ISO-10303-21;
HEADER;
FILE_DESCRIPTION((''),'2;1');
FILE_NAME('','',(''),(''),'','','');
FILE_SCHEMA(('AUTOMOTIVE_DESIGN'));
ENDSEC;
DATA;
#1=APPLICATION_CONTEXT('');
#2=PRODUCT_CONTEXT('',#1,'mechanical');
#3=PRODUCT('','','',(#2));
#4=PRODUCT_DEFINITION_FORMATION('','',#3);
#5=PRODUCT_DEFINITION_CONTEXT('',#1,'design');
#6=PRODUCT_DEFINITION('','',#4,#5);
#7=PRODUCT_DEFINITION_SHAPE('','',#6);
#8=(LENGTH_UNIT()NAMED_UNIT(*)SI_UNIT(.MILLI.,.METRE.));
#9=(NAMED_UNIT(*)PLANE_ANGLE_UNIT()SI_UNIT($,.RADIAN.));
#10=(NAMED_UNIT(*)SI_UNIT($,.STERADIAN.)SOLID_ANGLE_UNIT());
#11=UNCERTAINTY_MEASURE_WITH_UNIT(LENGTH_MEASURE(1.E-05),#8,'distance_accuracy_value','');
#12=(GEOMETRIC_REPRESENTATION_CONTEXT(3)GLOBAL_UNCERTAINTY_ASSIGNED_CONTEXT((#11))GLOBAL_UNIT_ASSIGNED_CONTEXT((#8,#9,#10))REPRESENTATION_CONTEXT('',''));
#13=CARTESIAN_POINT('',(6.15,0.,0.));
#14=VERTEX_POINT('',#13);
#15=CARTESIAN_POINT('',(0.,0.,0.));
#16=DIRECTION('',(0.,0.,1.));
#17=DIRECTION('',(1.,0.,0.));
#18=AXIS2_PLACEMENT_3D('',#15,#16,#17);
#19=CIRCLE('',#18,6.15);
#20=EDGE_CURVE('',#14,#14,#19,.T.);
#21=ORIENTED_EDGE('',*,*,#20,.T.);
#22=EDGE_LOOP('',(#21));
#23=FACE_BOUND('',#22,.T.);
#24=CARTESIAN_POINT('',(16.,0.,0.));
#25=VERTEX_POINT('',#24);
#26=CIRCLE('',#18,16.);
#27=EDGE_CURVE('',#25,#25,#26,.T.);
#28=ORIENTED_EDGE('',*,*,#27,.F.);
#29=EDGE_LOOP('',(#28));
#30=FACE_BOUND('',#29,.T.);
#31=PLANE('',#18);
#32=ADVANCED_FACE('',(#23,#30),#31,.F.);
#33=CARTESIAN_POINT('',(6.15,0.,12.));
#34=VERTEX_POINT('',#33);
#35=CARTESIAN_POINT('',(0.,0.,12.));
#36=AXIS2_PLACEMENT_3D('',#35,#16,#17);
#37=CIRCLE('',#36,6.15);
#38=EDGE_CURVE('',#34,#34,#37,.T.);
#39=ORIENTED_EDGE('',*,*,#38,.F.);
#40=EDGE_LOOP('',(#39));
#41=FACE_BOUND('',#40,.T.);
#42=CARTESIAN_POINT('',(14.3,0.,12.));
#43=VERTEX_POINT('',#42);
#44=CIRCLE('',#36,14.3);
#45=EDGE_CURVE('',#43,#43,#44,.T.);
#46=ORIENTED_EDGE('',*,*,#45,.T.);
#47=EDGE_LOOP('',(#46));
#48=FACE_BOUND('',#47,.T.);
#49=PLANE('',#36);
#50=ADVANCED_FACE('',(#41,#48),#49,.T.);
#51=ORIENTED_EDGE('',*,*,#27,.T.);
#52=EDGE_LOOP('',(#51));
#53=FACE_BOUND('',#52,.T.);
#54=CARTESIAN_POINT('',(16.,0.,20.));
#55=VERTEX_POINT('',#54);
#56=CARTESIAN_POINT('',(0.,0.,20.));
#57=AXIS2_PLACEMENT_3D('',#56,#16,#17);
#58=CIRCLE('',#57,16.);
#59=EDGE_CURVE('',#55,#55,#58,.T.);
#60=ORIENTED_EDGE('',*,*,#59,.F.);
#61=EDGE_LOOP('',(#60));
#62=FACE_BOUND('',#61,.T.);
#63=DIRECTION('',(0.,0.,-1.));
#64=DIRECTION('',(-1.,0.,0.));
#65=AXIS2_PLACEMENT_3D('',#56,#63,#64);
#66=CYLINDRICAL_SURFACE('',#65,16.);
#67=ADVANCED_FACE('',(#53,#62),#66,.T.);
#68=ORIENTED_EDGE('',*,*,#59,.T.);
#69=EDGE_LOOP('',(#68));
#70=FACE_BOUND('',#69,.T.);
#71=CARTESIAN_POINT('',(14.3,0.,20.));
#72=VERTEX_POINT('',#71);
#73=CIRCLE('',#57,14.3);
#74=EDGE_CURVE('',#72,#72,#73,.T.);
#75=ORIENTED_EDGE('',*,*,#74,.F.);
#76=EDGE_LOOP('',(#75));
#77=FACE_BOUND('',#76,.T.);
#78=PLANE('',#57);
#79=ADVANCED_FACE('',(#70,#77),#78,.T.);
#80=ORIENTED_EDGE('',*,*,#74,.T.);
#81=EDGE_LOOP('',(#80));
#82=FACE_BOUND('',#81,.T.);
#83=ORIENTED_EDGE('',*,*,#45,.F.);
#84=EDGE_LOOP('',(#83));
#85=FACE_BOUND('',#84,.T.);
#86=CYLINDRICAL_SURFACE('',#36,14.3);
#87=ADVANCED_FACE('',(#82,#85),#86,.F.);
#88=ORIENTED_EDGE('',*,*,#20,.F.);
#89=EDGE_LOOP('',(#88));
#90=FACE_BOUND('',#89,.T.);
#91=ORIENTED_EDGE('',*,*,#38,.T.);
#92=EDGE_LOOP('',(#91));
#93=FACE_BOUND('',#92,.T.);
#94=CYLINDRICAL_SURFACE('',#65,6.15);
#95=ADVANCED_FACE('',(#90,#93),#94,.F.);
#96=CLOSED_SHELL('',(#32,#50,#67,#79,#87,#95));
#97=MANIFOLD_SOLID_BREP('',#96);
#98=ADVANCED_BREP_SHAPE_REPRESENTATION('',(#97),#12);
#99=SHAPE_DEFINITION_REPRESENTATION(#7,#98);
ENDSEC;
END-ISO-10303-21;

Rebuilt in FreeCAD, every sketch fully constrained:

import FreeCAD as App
import Part
import Sketcher

V = App.Vector

doc = App.newDocument("Part")
params = doc.addObject("Spreadsheet::Sheet", "Params")
for row, (alias, value) in enumerate([
    ("sketch1_diameter", "32 mm"),
    ("sketch1_diameter2", "12.3 mm"),
    ("pad1_length", "20 mm"),
    ("sketch2_diameter", "28.6 mm"),
    ("pocket1_length", "8 mm"),
], start=1):
    params.set(f"A{row}", alias)
    params.set(f"B{row}", "=" + value)
    params.setAlias(f"B{row}", alias)

body = doc.addObject("PartDesign::Body", "Body")

sketch1 = doc.addObject("Sketcher::SketchObject", "Sketch")
body.addObject(sketch1)
sketch1.AttachmentSupport = (doc.XY_Plane, [""])
sketch1.MapMode = "FlatFace"
sketch1.addGeometry([
    Part.Circle(V(0, 0, 0), V(0, 0, 1), 16),
    Part.Circle(V(0, 0, 0), V(0, 0, 1), 6.15),
], False)
sketch1.addConstraint([
    Sketcher.Constraint("Coincident", 0, 3, -1, 1),
    Sketcher.Constraint("Coincident", 1, 3, -1, 1),
    Sketcher.Constraint("Diameter", 0, 32.0),
    Sketcher.Constraint("Diameter", 1, 12.3),
])
sketch1.setExpression("Constraints[2]", "Params.sketch1_diameter")
sketch1.setExpression("Constraints[3]", "Params.sketch1_diameter2")
pad1 = doc.addObject("PartDesign::Pad", "Pad")
body.addObject(pad1)
pad1.Profile = sketch1
pad1.setExpression("Length", "Params.pad1_length")

sketch2 = doc.addObject("Sketcher::SketchObject", "Sketch001")
body.addObject(sketch2)
sketch2.AttachmentSupport = (doc.XY_Plane, [""])
sketch2.MapMode = "FlatFace"
sketch2.AttachmentOffset = App.Placement(V(0, 0, 20), App.Rotation())
sketch2.addGeometry(Part.Circle(V(0, 0, 0), V(0, 0, 1), 14.3), False)
sketch2.addConstraint([
    Sketcher.Constraint("Coincident", 0, 3, -1, 1),
    Sketcher.Constraint("Diameter", 0, 28.6),
])
sketch2.setExpression("Constraints[1]", "Params.sketch2_diameter")
pocket1 = doc.addObject("PartDesign::Pocket", "Pocket")
body.addObject(pocket1)
pocket1.Profile = sketch2
pocket1.setExpression("Length", "Params.pocket1_length")

doc.recompute()
